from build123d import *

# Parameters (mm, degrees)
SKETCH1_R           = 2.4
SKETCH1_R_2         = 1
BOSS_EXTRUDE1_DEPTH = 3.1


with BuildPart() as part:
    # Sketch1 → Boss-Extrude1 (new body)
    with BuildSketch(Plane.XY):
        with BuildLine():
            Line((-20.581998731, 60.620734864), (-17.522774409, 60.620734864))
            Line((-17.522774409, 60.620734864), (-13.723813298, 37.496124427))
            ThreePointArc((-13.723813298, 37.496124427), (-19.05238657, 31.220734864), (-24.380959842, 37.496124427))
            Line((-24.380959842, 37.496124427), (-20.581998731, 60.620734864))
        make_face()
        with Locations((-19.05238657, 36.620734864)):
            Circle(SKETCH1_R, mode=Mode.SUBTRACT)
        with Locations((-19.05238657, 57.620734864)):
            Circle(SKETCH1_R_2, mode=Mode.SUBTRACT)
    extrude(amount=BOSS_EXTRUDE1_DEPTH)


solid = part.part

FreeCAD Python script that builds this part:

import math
import FreeCAD as App
import Part
import Sketcher

V = App.Vector
Q = App.Units.Quantity

doc = App.newDocument("Part")
params = doc.addObject("Spreadsheet::Sheet", "Params")
for row, (alias, value) in enumerate([
    ("sketch1_diameter", "2 mm"),
    ("sketch1_diameter2", "4.8 mm"),
    ("sketch1_radius", "5.4 mm"),
    ("pad1_length", "3.1 mm"),
], start=1):
    params.set(f"A{row}", alias)
    params.set(f"B{row}", "=" + value)
    params.setAlias(f"B{row}", alias)

body = doc.addObject("PartDesign::Body", "Body")

sketch1 = body.newObject("Sketcher::SketchObject", "Sketch")
sketch1.AttachmentSupport = (doc.getObject("XY_Plane"), [""])
sketch1.MapMode = "FlatFace"
sketch1.addGeometry(Part.LineSegment(V(-17.522774, 60.620735, 0), V(-20.581999, 60.620735, 0)), False)
sketch1.addGeometry(Part.LineSegment(V(-20.581999, 60.620735, 0), V(-24.38096, 37.496124, 0)), False)
sketch1.addGeometry(Part.ArcOfCircle(Part.Circle(V(-19.052387, 36.620735, 0), V(0, 0, 1), 5.4), math.radians(170.670658), math.radians(369.329342)), False)
sketch1.addGeometry(Part.LineSegment(V(-13.723813, 37.496124, 0), V(-17.522774, 60.620735, 0)), False)
sketch1.addGeometry(Part.Circle(V(-19.052387, 36.620735, 0), V(0, 0, 1), 2.4), False)
sketch1.addGeometry(Part.Circle(V(-19.052387, 57.620735, 0), V(0, 0, 1), 1), False)
sketch1.addConstraint(Sketcher.Constraint("Coincident", 0, 2, 1, 1))
sketch1.addConstraint(Sketcher.Constraint("Tangent", 1, 2, 2, 1))
sketch1.addConstraint(Sketcher.Constraint("Tangent", 2, 2, 3, 1))
sketch1.addConstraint(Sketcher.Constraint("Coincident", 3, 2, 0, 1))
sketch1.addConstraint(Sketcher.Constraint("Horizontal", 0))
sketch1.addConstraint(Sketcher.Constraint("Coincident", 4, 3, 2, 3))
sketch1.addConstraint(Sketcher.Constraint("Horizontal", 1, 2, 2, 2))
sketch1.addConstraint(Sketcher.Constraint("Vertical", 4, 3, 5, 3))
sketch1.addConstraint(Sketcher.Constraint("Diameter", 5, Q("2 mm")))
sketch1.addConstraint(Sketcher.Constraint("Diameter", 4, Q("4.8 mm")))
sketch1.addConstraint(Sketcher.Constraint("Radius", 2, Q("5.4 mm")))
sketch1.addConstraint(Sketcher.Constraint("DistanceY", 2, 3, 5, 3, Q("21 mm")))
sketch1.addConstraint(Sketcher.Constraint("DistanceY", 5, 3, 0, 2, Q("3 mm")))
sketch1.addConstraint(Sketcher.Constraint("DistanceX", 0, 2, -1, 1, Q("20.581999 mm")))
sketch1.addConstraint(Sketcher.Constraint("DistanceX", 0, 2, 0, 1, Q("3.059224 mm")))
sketch1.addConstraint(Sketcher.Constraint("DistanceY", -1, 1, 2, 3, Q("36.620735 mm")))
sketch1.setExpression("Constraints[8]", "Params.sketch1_diameter")
sketch1.setExpression("Constraints[9]", "Params.sketch1_diameter2")
sketch1.setExpression("Constraints[10]", "Params.sketch1_radius")
pad1 = body.newObject("PartDesign::Pad", "Pad")
pad1.Profile = sketch1
pad1.setExpression("Length", "Params.pad1_length")

doc.recompute()
